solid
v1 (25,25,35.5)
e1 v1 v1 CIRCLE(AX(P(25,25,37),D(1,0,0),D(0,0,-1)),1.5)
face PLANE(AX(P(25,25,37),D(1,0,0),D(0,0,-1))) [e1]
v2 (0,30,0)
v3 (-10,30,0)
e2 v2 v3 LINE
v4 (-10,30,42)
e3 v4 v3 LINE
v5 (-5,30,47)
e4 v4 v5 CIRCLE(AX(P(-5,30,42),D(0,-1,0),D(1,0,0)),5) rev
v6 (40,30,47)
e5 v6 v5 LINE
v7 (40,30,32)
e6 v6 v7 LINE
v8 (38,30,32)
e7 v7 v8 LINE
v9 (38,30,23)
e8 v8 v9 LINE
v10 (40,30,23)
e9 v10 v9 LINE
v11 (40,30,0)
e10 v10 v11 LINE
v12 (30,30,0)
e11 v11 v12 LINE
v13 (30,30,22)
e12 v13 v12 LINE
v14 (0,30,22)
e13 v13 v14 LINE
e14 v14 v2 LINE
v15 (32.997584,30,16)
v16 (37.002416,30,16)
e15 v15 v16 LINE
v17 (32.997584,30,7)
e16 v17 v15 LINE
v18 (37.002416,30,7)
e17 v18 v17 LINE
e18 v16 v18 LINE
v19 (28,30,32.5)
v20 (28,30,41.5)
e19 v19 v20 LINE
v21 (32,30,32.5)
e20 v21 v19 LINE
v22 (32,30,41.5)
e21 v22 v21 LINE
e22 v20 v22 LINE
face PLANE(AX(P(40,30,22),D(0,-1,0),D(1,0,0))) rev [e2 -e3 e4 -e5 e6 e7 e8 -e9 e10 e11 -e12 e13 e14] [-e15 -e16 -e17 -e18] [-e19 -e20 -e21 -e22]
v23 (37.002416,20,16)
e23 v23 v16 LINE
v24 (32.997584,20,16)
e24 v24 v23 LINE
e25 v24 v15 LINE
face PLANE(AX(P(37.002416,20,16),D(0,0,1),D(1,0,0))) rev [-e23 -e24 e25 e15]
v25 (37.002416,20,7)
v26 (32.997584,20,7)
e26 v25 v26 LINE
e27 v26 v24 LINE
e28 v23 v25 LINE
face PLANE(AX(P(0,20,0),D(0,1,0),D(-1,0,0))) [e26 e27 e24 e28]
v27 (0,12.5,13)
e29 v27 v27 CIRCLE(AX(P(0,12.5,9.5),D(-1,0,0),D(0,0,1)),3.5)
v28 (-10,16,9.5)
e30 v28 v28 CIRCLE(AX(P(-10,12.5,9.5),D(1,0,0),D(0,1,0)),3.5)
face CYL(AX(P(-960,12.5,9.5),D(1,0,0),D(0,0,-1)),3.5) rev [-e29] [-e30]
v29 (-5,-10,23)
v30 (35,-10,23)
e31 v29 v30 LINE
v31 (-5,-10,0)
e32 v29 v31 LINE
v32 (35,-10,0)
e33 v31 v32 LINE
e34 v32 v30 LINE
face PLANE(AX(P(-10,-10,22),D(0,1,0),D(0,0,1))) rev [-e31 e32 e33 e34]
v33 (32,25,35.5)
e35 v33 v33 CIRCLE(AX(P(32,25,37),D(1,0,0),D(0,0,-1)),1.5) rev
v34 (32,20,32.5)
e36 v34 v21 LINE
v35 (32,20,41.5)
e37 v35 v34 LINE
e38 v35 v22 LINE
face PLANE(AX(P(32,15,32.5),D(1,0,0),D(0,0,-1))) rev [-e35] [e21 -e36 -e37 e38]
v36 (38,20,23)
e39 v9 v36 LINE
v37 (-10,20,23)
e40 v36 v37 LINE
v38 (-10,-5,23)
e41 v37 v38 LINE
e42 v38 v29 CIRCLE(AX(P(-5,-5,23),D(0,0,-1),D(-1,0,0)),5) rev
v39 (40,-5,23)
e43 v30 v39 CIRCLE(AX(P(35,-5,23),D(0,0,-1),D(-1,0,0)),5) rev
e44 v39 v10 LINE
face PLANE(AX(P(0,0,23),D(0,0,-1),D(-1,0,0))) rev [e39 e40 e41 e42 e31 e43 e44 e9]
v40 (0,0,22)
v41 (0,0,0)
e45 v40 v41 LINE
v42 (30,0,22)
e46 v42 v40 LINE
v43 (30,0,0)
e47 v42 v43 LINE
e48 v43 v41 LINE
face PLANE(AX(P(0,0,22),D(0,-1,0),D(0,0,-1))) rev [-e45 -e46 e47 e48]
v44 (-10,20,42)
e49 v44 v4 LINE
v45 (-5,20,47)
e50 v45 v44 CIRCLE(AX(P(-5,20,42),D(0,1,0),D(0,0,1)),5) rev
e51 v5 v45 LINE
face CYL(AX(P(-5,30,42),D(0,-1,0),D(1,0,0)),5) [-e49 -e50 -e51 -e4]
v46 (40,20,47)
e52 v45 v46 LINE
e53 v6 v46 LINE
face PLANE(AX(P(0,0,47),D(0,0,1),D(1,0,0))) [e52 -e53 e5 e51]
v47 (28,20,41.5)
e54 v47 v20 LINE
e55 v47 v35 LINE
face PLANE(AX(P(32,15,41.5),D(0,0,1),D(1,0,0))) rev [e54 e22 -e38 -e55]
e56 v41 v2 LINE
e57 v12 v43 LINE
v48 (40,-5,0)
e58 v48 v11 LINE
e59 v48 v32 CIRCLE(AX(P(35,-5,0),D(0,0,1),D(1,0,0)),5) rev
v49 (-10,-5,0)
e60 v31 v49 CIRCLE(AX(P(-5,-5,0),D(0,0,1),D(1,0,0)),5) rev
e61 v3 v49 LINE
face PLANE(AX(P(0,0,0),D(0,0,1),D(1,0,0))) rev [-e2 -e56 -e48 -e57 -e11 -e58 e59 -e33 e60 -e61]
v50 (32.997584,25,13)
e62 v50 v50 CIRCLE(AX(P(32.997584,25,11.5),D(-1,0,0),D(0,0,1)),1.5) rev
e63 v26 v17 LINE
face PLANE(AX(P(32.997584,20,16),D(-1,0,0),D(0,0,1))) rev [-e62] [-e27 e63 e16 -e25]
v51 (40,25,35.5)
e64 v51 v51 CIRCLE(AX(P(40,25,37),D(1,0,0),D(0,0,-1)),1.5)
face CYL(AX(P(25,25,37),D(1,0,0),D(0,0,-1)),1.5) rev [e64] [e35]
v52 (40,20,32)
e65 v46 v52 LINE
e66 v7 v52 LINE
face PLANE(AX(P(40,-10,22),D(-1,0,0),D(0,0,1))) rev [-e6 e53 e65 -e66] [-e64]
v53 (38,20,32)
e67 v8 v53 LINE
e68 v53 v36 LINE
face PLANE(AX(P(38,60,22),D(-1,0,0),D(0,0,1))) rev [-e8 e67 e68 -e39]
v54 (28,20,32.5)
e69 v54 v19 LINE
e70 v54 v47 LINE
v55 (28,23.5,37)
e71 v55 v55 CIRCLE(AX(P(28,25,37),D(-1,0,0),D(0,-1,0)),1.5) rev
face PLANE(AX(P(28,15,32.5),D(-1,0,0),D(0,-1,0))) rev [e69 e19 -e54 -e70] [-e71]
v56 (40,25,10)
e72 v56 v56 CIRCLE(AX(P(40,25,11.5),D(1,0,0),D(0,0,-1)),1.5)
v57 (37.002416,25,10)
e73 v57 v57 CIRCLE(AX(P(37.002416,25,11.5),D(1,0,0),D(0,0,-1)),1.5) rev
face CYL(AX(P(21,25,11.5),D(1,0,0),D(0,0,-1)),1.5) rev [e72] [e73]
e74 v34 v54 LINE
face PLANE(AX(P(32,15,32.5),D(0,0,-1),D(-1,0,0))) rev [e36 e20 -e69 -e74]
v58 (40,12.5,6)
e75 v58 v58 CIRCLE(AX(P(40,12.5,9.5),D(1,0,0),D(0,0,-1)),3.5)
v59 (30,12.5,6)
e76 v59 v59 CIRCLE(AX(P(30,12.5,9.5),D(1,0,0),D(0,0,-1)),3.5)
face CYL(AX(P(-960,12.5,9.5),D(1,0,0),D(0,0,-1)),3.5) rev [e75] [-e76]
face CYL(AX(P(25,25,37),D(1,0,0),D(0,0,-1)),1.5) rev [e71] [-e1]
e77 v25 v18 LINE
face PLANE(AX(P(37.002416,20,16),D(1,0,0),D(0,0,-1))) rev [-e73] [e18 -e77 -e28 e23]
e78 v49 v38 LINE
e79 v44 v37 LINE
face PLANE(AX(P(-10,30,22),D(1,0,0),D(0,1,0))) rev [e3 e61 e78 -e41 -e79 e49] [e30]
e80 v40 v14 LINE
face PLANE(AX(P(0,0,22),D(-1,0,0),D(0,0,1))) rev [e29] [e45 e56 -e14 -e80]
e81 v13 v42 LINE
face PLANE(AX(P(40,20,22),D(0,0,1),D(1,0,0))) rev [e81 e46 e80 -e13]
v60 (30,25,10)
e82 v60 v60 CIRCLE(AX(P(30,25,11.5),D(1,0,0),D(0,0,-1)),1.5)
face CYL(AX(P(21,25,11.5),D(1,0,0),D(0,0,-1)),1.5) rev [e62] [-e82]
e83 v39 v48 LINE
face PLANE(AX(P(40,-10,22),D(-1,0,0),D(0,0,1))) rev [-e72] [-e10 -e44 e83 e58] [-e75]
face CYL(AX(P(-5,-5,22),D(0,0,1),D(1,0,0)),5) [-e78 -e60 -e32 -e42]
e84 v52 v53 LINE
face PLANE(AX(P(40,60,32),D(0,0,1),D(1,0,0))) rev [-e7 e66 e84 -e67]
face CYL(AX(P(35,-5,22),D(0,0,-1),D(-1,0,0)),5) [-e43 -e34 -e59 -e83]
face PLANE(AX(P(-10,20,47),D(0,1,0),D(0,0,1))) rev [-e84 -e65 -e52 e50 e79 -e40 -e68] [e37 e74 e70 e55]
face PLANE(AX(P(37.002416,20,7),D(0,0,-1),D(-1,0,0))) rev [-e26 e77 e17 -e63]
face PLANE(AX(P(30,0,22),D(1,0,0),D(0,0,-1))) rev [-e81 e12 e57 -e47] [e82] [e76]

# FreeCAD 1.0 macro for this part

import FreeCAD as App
import Part
import Sketcher

V = App.Vector
Q = App.Units.Quantity


def edges_at(feature, points):
    """Names of the edges that pass closest to the given points."""
    edges = feature.Shape.Edges
    near = lambda p: min(range(len(edges)), key=lambda i: edges[i].distToShape(Part.Vertex(*p))[0])
    return sorted({f"Edge{near(p) + 1}" for p in points})


def add_polygon(sketch, points):
    """Adds a closed chain of lines whose ends are joined by coincident constraints."""
    first, n = sketch.GeometryCount, len(points)
    for a, b in zip(points, points[1:] + points[:1]):
        sketch.addGeometry(Part.LineSegment(App.Vector(*a, 0), App.Vector(*b, 0)), False)
    for i in range(n):
        sketch.addConstraint(Sketcher.Constraint("Coincident", first + i, 2, first + (i + 1) % n, 1))

doc = App.newDocument("Part")
body = doc.addObject("PartDesign::Body", "Body")

# Sketch on XY plane
sketch1 = body.newObject("Sketcher::SketchObject", "Sketch")
sketch1.AttachmentSupport = (doc.getObject("XY_Plane"), [""])
sketch1.MapMode = "FlatFace"
add_polygon(sketch1, [(0, 30), (-10, 30), (-10, -10), (40, -10), (40, 30), (30, 30), (30, 0), (0, 0)])  # lines 0-7
sketch1.addConstraint([
    Sketcher.Constraint("Horizontal", 0),
    Sketcher.Constraint("Vertical", 1),
    Sketcher.Constraint("Horizontal", 2),
    Sketcher.Constraint("Vertical", 3),
    Sketcher.Constraint("Horizontal", 4),
    Sketcher.Constraint("Vertical", 5),
    Sketcher.Constraint("Horizontal", 6),
    Sketcher.Constraint("Vertical", 7),
    Sketcher.Constraint("Coincident", 6, 2, -1, 1),
    Sketcher.Constraint("Horizontal", 0, 2, 3, 2),
    Sketcher.Constraint("Equal", 0, 4),
    Sketcher.Constraint("Equal", 6, 5),
    Sketcher.Constraint("DistanceX", 0, 2, 0, 1, Q("10 mm")),
    Sketcher.Constraint("DistanceX", 2, 1, 2, 2, Q("50 mm")),
    Sketcher.Constraint("DistanceY", 1, 2, 1, 1, Q("40 mm")),
])
pad1 = body.newObject("PartDesign::Pad", "Pad")
pad1.Profile = sketch1
pad1.Length = 22

# Sketch on XY plane
sketch2 = body.newObject("Sketcher::SketchObject", "Sketch001")
sketch2.AttachmentSupport = (doc.getObject("XY_Plane"), [""])
sketch2.MapMode = "FlatFace"
sketch2.AttachmentOffset = App.Placement(V(0, 0, 22), App.Rotation())
add_polygon(sketch2, [(-10, 30), (-10, 20), (0, 20), (0, 30)])  # lines 0-3
sketch2.addConstraint([
    Sketcher.Constraint("Vertical", 0),
    Sketcher.Constraint("Horizontal", 1),
    Sketcher.Constraint("Vertical", 2),
    Sketcher.Constraint("Horizontal", 3),
    Sketcher.Constraint("PointOnObject", 1, 2, -2),
    Sketcher.Constraint("Equal", 3, 0),
    Sketcher.Constraint("DistanceX", 1, 1, 1, 2, Q("10 mm")),
    Sketcher.Constraint("DistanceY", -1, 1, 0, 2, Q("20 mm")),
])
pad2 = body.newObject("PartDesign::Pad", "Pad001")
pad2.Profile = sketch2
pad2.Length = 25

# Sketch on YZ plane
sketch3 = body.newObject("Sketcher::SketchObject", "Sketch002")
sketch3.AttachmentSupport = (doc.getObject("YZ_Plane"), [""])
sketch3.MapMode = "FlatFace"
add_polygon(sketch3, [(30, 47), (20, 47), (20, 22), (30, 22)])  # lines 0-3
sketch3.addConstraint([
    Sketcher.Constraint("Horizontal", 0),
    Sketcher.Constraint("Vertical", 1),
    Sketcher.Constraint("Horizontal", 2),
    Sketcher.Constraint("Vertical", 3),
    Sketcher.Constraint("DistanceX", 0, 2, 0, 1, Q("10 mm")),
    Sketcher.Constraint("DistanceY", 1, 2, 1, 1, Q("25 mm")),
    Sketcher.Constraint("DistanceX", -1, 1, 0, 2, Q("20 mm")),
    Sketcher.Constraint("DistanceY", -1, 1, 0, 2, Q("47 mm")),
])
pad3 = body.newObject("PartDesign::Pad", "Pad002")
pad3.Profile = sketch3
pad3.Length = 40

# Sketch on XZ plane
sketch4 = body.newObject("Sketcher::SketchObject", "Sketch003")
sketch4.AttachmentSupport = (doc.getObject("XZ_Plane"), [""])
sketch4.MapMode = "FlatFace"
sketch4.AttachmentOffset = App.Placement(V(0, 0, -20), App.Rotation())
add_polygon(sketch4, [(38, 32), (38, 22), (40, 22), (40, 32)])  # lines 0-3
sketch4.addConstraint([
    Sketcher.Constraint("Vertical", 0),
    Sketcher.Constraint("Horizontal", 1),
    Sketcher.Constraint("Vertical", 2),
    Sketcher.Constraint("Horizontal", 3),
    Sketcher.Constraint("DistanceX", 1, 1, 1, 2, Q("2 mm")),
    Sketcher.Constraint("DistanceY", 0, 2, 0, 1, Q("10 mm")),
    Sketcher.Constraint("DistanceX", -1, 1, 0, 2, Q("38 mm")),
    Sketcher.Constraint("DistanceY", -1, 1, 0, 2, Q("22 mm")),
])
pocket1 = body.newObject("PartDesign::Pocket", "Pocket")
pocket1.Profile = sketch4
pocket1.Length = 40

# Sketch on XY plane
sketch5 = body.newObject("Sketcher::SketchObject", "Sketch004")
sketch5.AttachmentSupport = (doc.getObject("XY_Plane"), [""])
sketch5.MapMode = "FlatFace"
sketch5.AttachmentOffset = App.Placement(V(0, 0, 22), App.Rotation())
add_polygon(sketch5, [(38, 20), (-10, 20), (-10, -10), (40, -10), (40, 30), (38, 30)])  # lines 0-5
sketch5.addConstraint([
    Sketcher.Constraint("Horizontal", 0),
    Sketcher.Constraint("Vertical", 1),
    Sketcher.Constraint("Horizontal", 2),
    Sketcher.Constraint("Vertical", 3),
    Sketcher.Constraint("Horizontal", 4),
    Sketcher.Constraint("Vertical", 5),
    Sketcher.Constraint("DistanceX", 0, 2, 0, 1, Q("48 mm")),
    Sketcher.Constraint("DistanceX", 2, 1, 2, 2, Q("50 mm")),
    Sketcher.Constraint("DistanceY", 1, 2, 1, 1, Q("30 mm")),
    Sketcher.Constraint("DistanceY", 3, 1, 3, 2, Q("40 mm")),
    Sketcher.Constraint("DistanceX", 0, 2, -1, 1, Q("10 mm")),
    Sketcher.Constraint("DistanceY", -1, 1, 0, 2, Q("20 mm")),
])
pad4 = body.newObject("PartDesign::Pad", "Pad003")
pad4.Profile = sketch5
pad4.Length = 1

# Sketch on YZ plane
sketch6 = body.newObject("Sketcher::SketchObject", "Sketch005")
sketch6.AttachmentSupport = (doc.getObject("YZ_Plane"), [""])
sketch6.MapMode = "FlatFace"
sketch6.AttachmentOffset = App.Placement(V(0, 0, 40), App.Rotation())
sketch6.addGeometry([
    Part.Circle(V(25, 37, 0), V(0, 0, 1), 1.5),
    Part.Circle(V(25, 17, 0), V(0, 0, 1), 1.5),
], False)
sketch6.addConstraint([
    Sketcher.Constraint("Equal", 0, 1),
    Sketcher.Constraint("Vertical", 0, 3, 1, 3),
    Sketcher.Constraint("Diameter", 0, Q("3 mm")),
    Sketcher.Constraint("DistanceX", -1, 1, 0, 3, Q("25 mm")),
    Sketcher.Constraint("DistanceY", -1, 1, 0, 3, Q("37 mm")),
    Sketcher.Constraint("DistanceY", -1, 1, 1, 3, Q("17 mm")),
])
pocket2 = body.newObject("PartDesign::Pocket", "Pocket001")
pocket2.Profile = sketch6
pocket2.Length = 15

# Sketch on XZ plane
sketch7 = body.newObject("Sketcher::SketchObject", "Sketch006")
sketch7.AttachmentSupport = (doc.getObject("XZ_Plane"), [""])
sketch7.MapMode = "FlatFace"
sketch7.AttachmentOffset = App.Placement(V(0, 0, -30), App.Rotation())
add_polygon(sketch7, [(33, 12.5), (33, 21.5), (37, 21.5), (37, 12.5)])  # lines 0-3
add_polygon(sketch7, [(28, 32.5), (28, 41.5), (32, 41.5), (32, 32.5)])  # lines 4-7
sketch7.addConstraint([
    Sketcher.Constraint("Vertical", 0),
    Sketcher.Constraint("Horizontal", 1),
    Sketcher.Constraint("Vertical", 2),
    Sketcher.Constraint("Horizontal", 3),
    Sketcher.Constraint("Vertical", 4),
    Sketcher.Constraint("Horizontal", 5),
    Sketcher.Constraint("Vertical", 6),
    Sketcher.Constraint("Horizontal", 7),
    Sketcher.Constraint("Equal", 3, 5),
    Sketcher.Constraint("Equal", 2, 4),
    Sketcher.Constraint("DistanceX", 1, 1, 1, 2, Q("4 mm")),
    Sketcher.Constraint("DistanceY", 0, 1, 0, 2, Q("9 mm")),
    Sketcher.Constraint("DistanceX", -1, 1, 0, 2, Q("33 mm")),
    Sketcher.Constraint("DistanceX", -1, 1, 4, 2, Q("28 mm")),
    Sketcher.Constraint("DistanceY", 0, 2, 4, 2, Q("20 mm")),
    Sketcher.Constraint("DistanceY", -1, 1, 0, 2, Q("21.5 mm")),
])
pocket3 = body.newObject("PartDesign::Pocket", "Pocket002")
pocket3.Profile = sketch7
pocket3.Length = 15
pocket3.Reversed = True
doc.recompute()

fillet = body.newObject("PartDesign::Fillet", "Fillet")
fillet.Base = (pocket3, edges_at(pocket3, [(40, -10, 11.5)]))
fillet.Radius = 5
doc.recompute()

fillet2 = body.newObject("PartDesign::Fillet", "Fillet001")
fillet2.Base = (fillet, edges_at(fillet, [(-10, -10, 11.5)]))
fillet2.Radius = 5
doc.recompute()

fillet3 = body.newObject("PartDesign::Fillet", "Fillet002")
fillet3.Base = (fillet2, edges_at(fillet2, [(-10, 25, 47)]))
fillet3.Radius = 5

# Sketch on YZ plane
sketch8 = body.newObject("Sketcher::SketchObject", "Sketch007")
sketch8.AttachmentSupport = (doc.getObject("YZ_Plane"), [""])
sketch8.MapMode = "FlatFace"
sketch8.AttachmentOffset = App.Placement(V(0, 0, 40), App.Rotation())
sketch8.addGeometry(Part.Circle(V(12.5, 9.5, 0), V(0, 0, 1), 3.5), False)
sketch8.addConstraint([
    Sketcher.Constraint("Diameter", 0, Q("7 mm")),
    Sketcher.Constraint("DistanceX", -1, 1, 0, 3, Q("12.5 mm")),
    Sketcher.Constraint("DistanceY", -1, 1, 0, 3, Q("9.5 mm")),
])
pocket4 = body.newObject("PartDesign::Pocket", "Pocket003")
pocket4.Profile = sketch8
pocket4.Length = 1000

# Sketch on XZ plane
sketch9 = body.newObject("Sketcher::SketchObject", "Sketch008")
sketch9.AttachmentSupport = (doc.getObject("XZ_Plane"), [""])
sketch9.MapMode = "FlatFace"
sketch9.AttachmentOffset = App.Placement(V(0, 0, -30), App.Rotation())
add_polygon(sketch9, [(33, 12.5), (33, 21.5), (37, 21.5), (37, 12.5)])  # lines 0-3
sketch9.addConstraint([
    Sketcher.Constraint("Vertical", 0),
    Sketcher.Constraint("Horizontal", 1),
    Sketcher.Constraint("Vertical", 2),
    Sketcher.Constraint("Horizontal", 3),
    Sketcher.Constraint("DistanceX", 1, 1, 1, 2, Q("4 mm")),
    Sketcher.Constraint("DistanceY", 0, 1, 0, 2, Q("9 mm")),
    Sketcher.Constraint("DistanceX", -1, 1, 0, 2, Q("33 mm")),
    Sketcher.Constraint("DistanceY", -1, 1, 0, 2, Q("21.5 mm")),
])
pad5 = body.newObject("PartDesign::Pad", "Pad004")
pad5.Profile = sketch9
pad5.Length = 15

# Sketch on YZ plane
sketch10 = body.newObject("Sketcher::SketchObject", "Sketch009")
sketch10.AttachmentSupport = (doc.getObject("YZ_Plane"), [""])
sketch10.MapMode = "FlatFace"
sketch10.AttachmentOffset = App.Placement(V(0, 0, 40), App.Rotation())
sketch10.addGeometry(Part.Circle(V(25, 17, 0), V(0, 0, 1), 1.5), False)
sketch10.addConstraint([
    Sketcher.Constraint("Diameter", 0, Q("3 mm")),
    Sketcher.Constraint("DistanceX", -1, 1, 0, 3, Q("25 mm")),
    Sketcher.Constraint("DistanceY", -1, 1, 0, 3, Q("17 mm")),
])
pad6 = body.newObject("PartDesign::Pad", "Pad005")
pad6.Profile = sketch10
pad6.Length = 10
pad6.Reversed = True

# Sketch on YZ plane
sketch11 = body.newObject("Sketcher::SketchObject", "Sketch010")
sketch11.AttachmentSupport = (doc.getObject("YZ_Plane"), [""])
sketch11.MapMode = "FlatFace"
sketch11.AttachmentOffset = App.Placement(V(0, 0, 40), App.Rotation())
sketch11.addGeometry(Part.Circle(V(25, 11.5, 0), V(0, 0, 1), 1.5), False)
sketch11.addConstraint([
    Sketcher.Constraint("Diameter", 0, Q("3 mm")),
    Sketcher.Constraint("DistanceX", -1, 1, 0, 3, Q("25 mm")),
    Sketcher.Constraint("DistanceY", -1, 1, 0, 3, Q("11.5 mm")),
])
pocket5 = body.newObject("PartDesign::Pocket", "Pocket004")
pocket5.Profile = sketch11
pocket5.Length = 19

# Sketch on XZ plane
sketch12 = body.newObject("Sketcher::SketchObject", "Sketch011")
sketch12.AttachmentSupport = (doc.getObject("XZ_Plane"), [""])
sketch12.MapMode = "FlatFace"
sketch12.AttachmentOffset = App.Placement(V(0, 0, -30), App.Rotation())
add_polygon(sketch12, [(32.997584, 7), (32.997584, 16), (37.002416, 16), (37.002416, 7)])  # lines 0-3
sketch12.addConstraint([
    Sketcher.Constraint("Vertical", 0),
    Sketcher.Constraint("Horizontal", 1),
    Sketcher.Constraint("Vertical", 2),
    Sketcher.Constraint("Horizontal", 3),
    Sketcher.Constraint("DistanceY", 0, 1, 0, 2, Q("9 mm")),
    Sketcher.Constraint("DistanceY", -1, 1, 0, 2, Q("16 mm")),
    Sketcher.Constraint("DistanceX", 1, 1, 1, 2, Q("4.004831 mm")),
    Sketcher.Constraint("DistanceX", -1, 1, 0, 2, Q("32.997584 mm")),
])
pocket6 = body.newObject("PartDesign::Pocket", "Pocket005")
pocket6.Profile = sketch12
pocket6.Length = 10
pocket6.Reversed = True

doc.recompute()
